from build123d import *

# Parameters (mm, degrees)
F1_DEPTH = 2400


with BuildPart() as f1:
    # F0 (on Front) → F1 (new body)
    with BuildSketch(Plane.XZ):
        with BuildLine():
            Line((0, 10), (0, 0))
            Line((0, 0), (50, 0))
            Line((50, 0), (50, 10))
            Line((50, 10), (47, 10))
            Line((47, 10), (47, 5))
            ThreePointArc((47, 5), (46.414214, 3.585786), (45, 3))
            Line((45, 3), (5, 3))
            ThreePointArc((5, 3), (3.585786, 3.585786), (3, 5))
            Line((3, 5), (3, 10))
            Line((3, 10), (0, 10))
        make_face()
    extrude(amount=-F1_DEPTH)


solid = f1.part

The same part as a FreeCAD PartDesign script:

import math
import FreeCAD as App
import Part
import Sketcher

V = App.Vector
Q = App.Units.Quantity

doc = App.newDocument("Part")
body = doc.addObject("PartDesign::Body", "Body")

# Sketch on XZ plane
sketch1 = body.newObject("Sketcher::SketchObject", "Sketch")
sketch1.AttachmentSupport = (doc.getObject("XZ_Plane"), [""])
sketch1.MapMode = "FlatFace"
sketch1.addGeometry(Part.LineSegment(V(0, 10, 0), V(0, 0, 0)), False)
sketch1.addGeometry(Part.LineSegment(V(0, 0, 0), V(50, 0, 0)), False)
sketch1.addGeometry(Part.LineSegment(V(50, 0, 0), V(50, 10, 0)), False)
sketch1.addGeometry(Part.LineSegment(V(50, 10, 0), V(47, 10, 0)), False)
sketch1.addGeometry(Part.LineSegment(V(47, 10, 0), V(47, 5, 0)), False)
sketch1.addGeometry(Part.ArcOfCircle(Part.Circle(V(45, 5, 0), V(0, 0, 1), 2), math.radians(-90), math.radians(0)), False)
sketch1.addGeometry(Part.LineSegment(V(45, 3, 0), V(5, 3, 0)), False)
sketch1.addGeometry(Part.ArcOfCircle(Part.Circle(V(5, 5, 0), V(0, 0, 1), 2), math.radians(180), math.radians(270)), False)
sketch1.addGeometry(Part.LineSegment(V(3, 5, 0), V(3, 10, 0)), False)
sketch1.addGeometry(Part.LineSegment(V(3, 10, 0), V(0, 10, 0)), False)
sketch1.addConstraint(Sketcher.Constraint("Coincident", 0, 2, 1, 1))
sketch1.addConstraint(Sketcher.Constraint("Coincident", 1, 2, 2, 1))
sketch1.addConstraint(Sketcher.Constraint("Coincident", 2, 2, 3, 1))
sketch1.addConstraint(Sketcher.Constraint("Coincident", 3, 2, 4, 1))
sketch1.addConstraint(Sketcher.Constraint("Tangent", 4, 2, 5, 2))
sketch1.addConstraint(Sketcher.Constraint("Tangent", 5, 1, 6, 1))
sketch1.addConstraint(Sketcher.Constraint("Tangent", 6, 2, 7, 2))
sketch1.addConstraint(Sketcher.Constraint("Tangent", 7, 1, 8, 1))
sketch1.addConstraint(Sketcher.Constraint("Coincident", 8, 2, 9, 1))
sketch1.addConstraint(Sketcher.Constraint("Coincident", 9, 2, 0, 1))
sketch1.addConstraint(Sketcher.Constraint("Vertical", 0))
sketch1.addConstraint(Sketcher.Constraint("Horizontal", 1))
sketch1.addConstraint(Sketcher.Constraint("Vertical", 2))
sketch1.addConstraint(Sketcher.Constraint("Horizontal", 3))
sketch1.addConstraint(Sketcher.Constraint("Vertical", 4))
sketch1.addConstraint(Sketcher.Constraint("Horizontal", 6))
sketch1.addConstraint(Sketcher.Constraint("Vertical", 8))
sketch1.addConstraint(Sketcher.Constraint("Horizontal", 9))
sketch1.addConstraint(Sketcher.Constraint("Coincident", 0, 2, -1, 1))
sketch1.addConstraint(Sketcher.Constraint("Equal", 5, 7))
sketch1.addConstraint(Sketcher.Constraint("Horizontal", 3, 2, 8, 2))
sketch1.addConstraint(Sketcher.Constraint("Equal", 3, 9))
sketch1.addConstraint(Sketcher.Constraint("Radius", 5, Q("1.999999 mm")))
sketch1.addConstraint(Sketcher.Constraint("DistanceX", 1, 1, 1, 2, Q("50 mm")))
sketch1.addConstraint(Sketcher.Constraint("DistanceX", 3, 2, 3, 1, Q("3 mm")))
sketch1.addConstraint(Sketcher.Constraint("DistanceY", 0, 2, 0, 1, Q("10 mm")))
sketch1.addConstraint(Sketcher.Constraint("DistanceY", 4, 2, 4, 1, Q("5 mm")))
pad1 = body.newObject("PartDesign::Pad", "Pad")
pad1.Profile = sketch1
pad1.Length = 2400
pad1.Reversed = True

doc.recompute()
